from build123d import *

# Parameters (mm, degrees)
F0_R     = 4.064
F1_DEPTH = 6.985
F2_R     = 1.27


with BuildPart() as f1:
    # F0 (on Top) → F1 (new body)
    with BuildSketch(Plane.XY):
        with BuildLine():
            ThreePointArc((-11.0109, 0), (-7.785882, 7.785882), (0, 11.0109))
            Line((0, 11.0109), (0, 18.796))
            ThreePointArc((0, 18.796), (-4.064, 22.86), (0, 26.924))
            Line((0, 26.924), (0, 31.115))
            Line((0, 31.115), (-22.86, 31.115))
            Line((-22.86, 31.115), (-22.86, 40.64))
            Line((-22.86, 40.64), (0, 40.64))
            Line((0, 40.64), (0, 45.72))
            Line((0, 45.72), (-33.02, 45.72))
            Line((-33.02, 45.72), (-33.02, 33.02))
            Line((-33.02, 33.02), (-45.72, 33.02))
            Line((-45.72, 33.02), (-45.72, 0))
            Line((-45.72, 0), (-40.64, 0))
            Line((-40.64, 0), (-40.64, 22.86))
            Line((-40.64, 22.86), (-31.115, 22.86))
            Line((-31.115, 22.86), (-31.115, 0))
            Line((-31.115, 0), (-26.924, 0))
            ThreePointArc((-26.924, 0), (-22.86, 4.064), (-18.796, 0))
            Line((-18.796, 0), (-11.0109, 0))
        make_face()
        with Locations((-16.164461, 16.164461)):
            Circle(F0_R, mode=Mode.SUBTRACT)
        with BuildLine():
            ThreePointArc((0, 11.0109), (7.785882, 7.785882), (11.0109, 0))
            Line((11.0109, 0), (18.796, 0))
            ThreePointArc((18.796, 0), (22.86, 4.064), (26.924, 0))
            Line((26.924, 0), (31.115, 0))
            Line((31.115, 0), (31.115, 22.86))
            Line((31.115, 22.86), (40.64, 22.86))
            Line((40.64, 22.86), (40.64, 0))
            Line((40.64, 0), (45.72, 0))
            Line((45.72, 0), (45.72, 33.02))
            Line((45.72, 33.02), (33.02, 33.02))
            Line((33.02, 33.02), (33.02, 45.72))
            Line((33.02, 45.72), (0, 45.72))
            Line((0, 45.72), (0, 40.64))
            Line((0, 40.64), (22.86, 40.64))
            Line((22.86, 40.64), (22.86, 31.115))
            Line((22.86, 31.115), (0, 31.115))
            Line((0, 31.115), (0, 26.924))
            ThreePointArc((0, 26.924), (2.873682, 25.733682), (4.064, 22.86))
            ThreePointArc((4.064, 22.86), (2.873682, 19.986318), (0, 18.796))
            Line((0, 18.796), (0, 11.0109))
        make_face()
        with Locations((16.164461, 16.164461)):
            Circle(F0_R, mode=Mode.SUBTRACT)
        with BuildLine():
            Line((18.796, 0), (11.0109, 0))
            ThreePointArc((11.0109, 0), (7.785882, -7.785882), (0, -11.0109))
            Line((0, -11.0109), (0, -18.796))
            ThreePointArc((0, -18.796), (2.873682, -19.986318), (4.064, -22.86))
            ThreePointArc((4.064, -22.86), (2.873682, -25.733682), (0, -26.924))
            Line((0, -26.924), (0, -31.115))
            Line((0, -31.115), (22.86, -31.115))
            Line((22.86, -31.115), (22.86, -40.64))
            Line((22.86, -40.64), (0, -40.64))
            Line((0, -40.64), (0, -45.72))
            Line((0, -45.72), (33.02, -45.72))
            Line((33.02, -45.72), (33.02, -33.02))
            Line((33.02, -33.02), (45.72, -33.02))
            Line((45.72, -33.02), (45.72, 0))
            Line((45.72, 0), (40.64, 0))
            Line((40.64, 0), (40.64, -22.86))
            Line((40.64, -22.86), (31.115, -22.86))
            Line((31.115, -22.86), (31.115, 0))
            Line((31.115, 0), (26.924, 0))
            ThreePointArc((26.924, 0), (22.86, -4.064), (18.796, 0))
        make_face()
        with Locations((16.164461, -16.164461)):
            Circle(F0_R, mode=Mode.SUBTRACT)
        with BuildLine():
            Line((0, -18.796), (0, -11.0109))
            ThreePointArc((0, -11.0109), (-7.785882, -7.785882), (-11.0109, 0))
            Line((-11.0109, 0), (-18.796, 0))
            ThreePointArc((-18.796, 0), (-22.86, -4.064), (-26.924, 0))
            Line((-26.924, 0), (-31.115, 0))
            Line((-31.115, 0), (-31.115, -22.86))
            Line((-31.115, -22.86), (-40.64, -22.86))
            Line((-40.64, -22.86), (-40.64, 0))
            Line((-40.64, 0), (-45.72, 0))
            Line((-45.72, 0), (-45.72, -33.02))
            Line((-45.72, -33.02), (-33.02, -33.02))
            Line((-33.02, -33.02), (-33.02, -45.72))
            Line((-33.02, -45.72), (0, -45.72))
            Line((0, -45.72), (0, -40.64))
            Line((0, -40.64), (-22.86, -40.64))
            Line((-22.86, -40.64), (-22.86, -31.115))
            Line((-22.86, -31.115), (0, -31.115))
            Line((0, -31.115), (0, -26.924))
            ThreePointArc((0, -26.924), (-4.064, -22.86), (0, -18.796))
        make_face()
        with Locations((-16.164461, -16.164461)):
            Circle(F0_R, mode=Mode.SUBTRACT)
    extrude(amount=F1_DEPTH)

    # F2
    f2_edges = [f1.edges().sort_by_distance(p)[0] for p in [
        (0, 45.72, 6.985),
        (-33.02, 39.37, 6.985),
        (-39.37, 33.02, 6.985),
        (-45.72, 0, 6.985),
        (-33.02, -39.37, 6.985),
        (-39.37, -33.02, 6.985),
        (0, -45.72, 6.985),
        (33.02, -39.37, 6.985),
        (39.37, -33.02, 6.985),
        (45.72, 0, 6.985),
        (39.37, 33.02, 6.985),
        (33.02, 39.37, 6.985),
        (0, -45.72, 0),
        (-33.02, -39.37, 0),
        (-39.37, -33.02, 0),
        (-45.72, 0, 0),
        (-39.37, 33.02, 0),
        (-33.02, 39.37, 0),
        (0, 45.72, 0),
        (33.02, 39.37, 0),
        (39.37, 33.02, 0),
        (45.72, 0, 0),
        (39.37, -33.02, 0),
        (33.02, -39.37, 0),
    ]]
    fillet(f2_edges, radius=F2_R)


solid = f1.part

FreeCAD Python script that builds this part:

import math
import FreeCAD as App
import Part
import Sketcher
Q = App.Units.Quantity


def edges_at(feature, points):
    """Names of the edges that pass closest to the given points."""
    edges = feature.Shape.Edges
    near = lambda p: min(range(len(edges)), key=lambda i: edges[i].distToShape(Part.Vertex(*p))[0])
    return sorted({f"Edge{near(p) + 1}" for p in points})

doc = App.newDocument("Part")
body = doc.addObject("PartDesign::Body", "Body")

sketch1 = body.newObject("Sketcher::SketchObject", "Sketch")
sketch1.AttachmentSupport = (doc.getObject("XY_Plane"), [""])
sketch1.MapMode = "FlatFace"
sketch1.addGeometry([
    Part.LineSegment(App.Vector(-45.7, 33, 0), App.Vector(-45.7, -33, 0)),
    Part.LineSegment(App.Vector(-45.7, -33, 0), App.Vector(-33, -33, 0)),
    Part.LineSegment(App.Vector(-33, -33, 0), App.Vector(-33, -45.7, 0)),
    Part.LineSegment(App.Vector(-33, -45.7, 0), App.Vector(33, -45.7, 0)),
    Part.LineSegment(App.Vector(33, -45.7, 0), App.Vector(33, -33, 0)),
    Part.LineSegment(App.Vector(33, -33, 0), App.Vector(45.7, -33, 0)),
    Part.LineSegment(App.Vector(45.7, -33, 0), App.Vector(45.7, 33, 0)),
    Part.LineSegment(App.Vector(45.7, 33, 0), App.Vector(33, 33, 0)),
    Part.LineSegment(App.Vector(33, 33, 0), App.Vector(33, 45.7, 0)),
    Part.LineSegment(App.Vector(33, 45.7, 0), App.Vector(-33, 45.7, 0)),
    Part.LineSegment(App.Vector(-33, 45.7, 0), App.Vector(-33, 33, 0)),
    Part.LineSegment(App.Vector(-33, 33, 0), App.Vector(-45.7, 33, 0)),
    Part.LineSegment(App.Vector(22.9, -31.1, 0), App.Vector(22.9, -40.6, 0)),
    Part.LineSegment(App.Vector(22.9, -40.6, 0), App.Vector(-22.9, -40.6, 0)),
    Part.LineSegment(App.Vector(-22.9, -40.6, 0), App.Vector(-22.9, -31.1, 0)),
    Part.LineSegment(App.Vector(-22.9, -31.1, 0), App.Vector(22.9, -31.1, 0)),
    Part.ArcOfCircle(Part.Circle(App.Vector(0, -22.9, 0), App.Vector(0, 0, 1), 4.1), math.radians(0), math.radians(90)),
    Part.ArcOfCircle(Part.Circle(App.Vector(0, -22.9, 0), App.Vector(0, 0, 1), 4.1), math.radians(-90), math.radians(0)),
    Part.ArcOfCircle(Part.Circle(App.Vector(0, -22.9, 0), App.Vector(0, 0, 1), 4.1), math.radians(90), math.radians(270)),
    Part.LineSegment(App.Vector(-31.1, 22.9, 0), App.Vector(-31.1, -22.9, 0)),
    Part.LineSegment(App.Vector(-31.1, -22.9, 0), App.Vector(-40.6, -22.9, 0)),
    Part.LineSegment(App.Vector(-40.6, -22.9, 0), App.Vector(-40.6, 22.9, 0)),
    Part.LineSegment(App.Vector(-40.6, 22.9, 0), App.Vector(-31.1, 22.9, 0)),
    Part.Circle(App.Vector(-22.9, 0, 0), App.Vector(0, 0, 1), 4.1),
    Part.Circle(App.Vector(-16.2, -16.2, 0), App.Vector(0, 0, 1), 4.1),
    Part.ArcOfCircle(Part.Circle(App.Vector(0, 0, 0), App.Vector(0, 0, 1), 11), math.radians(90), math.radians(180)),
    Part.ArcOfCircle(Part.Circle(App.Vector(0, 0, 0), App.Vector(0, 0, 1), 11), math.radians(0), math.radians(90)),
    Part.ArcOfCircle(Part.Circle(App.Vector(0, 0, 0), App.Vector(0, 0, 1), 11), math.radians(-90), math.radians(0)),
    Part.ArcOfCircle(Part.Circle(App.Vector(0, 0, 0), App.Vector(0, 0, 1), 11), math.radians(-180), math.radians(-90)),
    Part.Circle(App.Vector(16.2, -16.2, 0), App.Vector(0, 0, 1), 4.1),
    Part.Circle(App.Vector(22.9, 0, 0), App.Vector(0, 0, 1), 4.1),
    Part.LineSegment(App.Vector(31.1, 22.9, 0), App.Vector(40.6, 22.9, 0)),
    Part.LineSegment(App.Vector(40.6, 22.9, 0), App.Vector(40.6, -22.9, 0)),
    Part.LineSegment(App.Vector(40.6, -22.9, 0), App.Vector(31.1, -22.9, 0)),
    Part.LineSegment(App.Vector(31.1, -22.9, 0), App.Vector(31.1, 22.9, 0)),
    Part.Circle(App.Vector(-16.2, 16.2, 0), App.Vector(0, 0, 1), 4.1),
    Part.ArcOfCircle(Part.Circle(App.Vector(0, 22.9, 0), App.Vector(0, 0, 1), 4.1), math.radians(90), math.radians(270)),
    Part.ArcOfCircle(Part.Circle(App.Vector(0, 22.9, 0), App.Vector(0, 0, 1), 4.1), math.radians(0), math.radians(90)),
    Part.ArcOfCircle(Part.Circle(App.Vector(0, 22.9, 0), App.Vector(0, 0, 1), 4.1), math.radians(-90), math.radians(0)),
    Part.LineSegment(App.Vector(-22.9, 31.1, 0), App.Vector(-22.9, 40.6, 0)),
    Part.LineSegment(App.Vector(-22.9, 40.6, 0), App.Vector(22.9, 40.6, 0)),
    Part.LineSegment(App.Vector(22.9, 40.6, 0), App.Vector(22.9, 31.1, 0)),
    Part.LineSegment(App.Vector(22.9, 31.1, 0), App.Vector(-22.9, 31.1, 0)),
    Part.Circle(App.Vector(16.2, 16.2, 0), App.Vector(0, 0, 1), 4.1),
], False)
sketch1.addConstraint([
    Sketcher.Constraint("Coincident", 0, 2, 1, 1),
    Sketcher.Constraint("Coincident", 1, 2, 2, 1),
    Sketcher.Constraint("Coincident", 2, 2, 3, 1),
    Sketcher.Constraint("Coincident", 3, 2, 4, 1),
    Sketcher.Constraint("Coincident", 4, 2, 5, 1),
    Sketcher.Constraint("Coincident", 5, 2, 6, 1),
    Sketcher.Constraint("Coincident", 6, 2, 7, 1),
    Sketcher.Constraint("Coincident", 7, 2, 8, 1),
    Sketcher.Constraint("Coincident", 8, 2, 9, 1),
    Sketcher.Constraint("Coincident", 9, 2, 10, 1),
    Sketcher.Constraint("Coincident", 10, 2, 11, 1),
    Sketcher.Constraint("Coincident", 11, 2, 0, 1),
    Sketcher.Constraint("Coincident", 12, 2, 13, 1),
    Sketcher.Constraint("Coincident", 13, 2, 14, 1),
    Sketcher.Constraint("Coincident", 14, 2, 15, 1),
    Sketcher.Constraint("Coincident", 15, 2, 12, 1),
    Sketcher.Constraint("Tangent", 16, 1, 17, 2),
    Sketcher.Constraint("Tangent", 17, 1, 18, 2),
    Sketcher.Constraint("Tangent", 18, 1, 16, 2),
    Sketcher.Constraint("Coincident", 19, 2, 20, 1),
    Sketcher.Constraint("Coincident", 20, 2, 21, 1),
    Sketcher.Constraint("Coincident", 21, 2, 22, 1),
    Sketcher.Constraint("Coincident", 22, 2, 19, 1),
    Sketcher.Constraint("Tangent", 25, 1, 26, 2),
    Sketcher.Constraint("Tangent", 26, 1, 27, 2),
    Sketcher.Constraint("Tangent", 27, 1, 28, 2),
    Sketcher.Constraint("Tangent", 28, 1, 25, 2),
    Sketcher.Constraint("Coincident", 31, 2, 32, 1),
    Sketcher.Constraint("Coincident", 32, 2, 33, 1),
    Sketcher.Constraint("Coincident", 33, 2, 34, 1),
    Sketcher.Constraint("Coincident", 34, 2, 31, 1),
    Sketcher.Constraint("Tangent", 36, 1, 37, 2),
    Sketcher.Constraint("Tangent", 37, 1, 38, 2),
    Sketcher.Constraint("Tangent", 38, 1, 36, 2),
    Sketcher.Constraint("Coincident", 39, 2, 40, 1),
    Sketcher.Constraint("Coincident", 40, 2, 41, 1),
    Sketcher.Constraint("Coincident", 41, 2, 42, 1),
    Sketcher.Constraint("Coincident", 42, 2, 39, 1),
    Sketcher.Constraint("Vertical", 0),
    Sketcher.Constraint("Horizontal", 1),
    Sketcher.Constraint("Vertical", 2),
    Sketcher.Constraint("Horizontal", 3),
    Sketcher.Constraint("Vertical", 4),
    Sketcher.Constraint("Horizontal", 5),
    Sketcher.Constraint("Vertical", 6),
    Sketcher.Constraint("Horizontal", 7),
    Sketcher.Constraint("Vertical", 8),
    Sketcher.Constraint("Horizontal", 9),
    Sketcher.Constraint("Vertical", 10),
    Sketcher.Constraint("Horizontal", 11),
    Sketcher.Constraint("Vertical", 12),
    Sketcher.Constraint("Horizontal", 13),
    Sketcher.Constraint("Vertical", 14),
    Sketcher.Constraint("Horizontal", 15),
    Sketcher.Constraint("Vertical", 19),
    Sketcher.Constraint("Horizontal", 20),
    Sketcher.Constraint("Vertical", 21),
    Sketcher.Constraint("Horizontal", 22),
    Sketcher.Constraint("Horizontal", 31),
    Sketcher.Constraint("Vertical", 32),
    Sketcher.Constraint("Horizontal", 33),
    Sketcher.Constraint("Vertical", 34),
    Sketcher.Constraint("Vertical", 39),
    Sketcher.Constraint("Horizontal", 40),
    Sketcher.Constraint("Vertical", 41),
    Sketcher.Constraint("Horizontal", 42),
    Sketcher.Constraint("Coincident", 25, 3, -1, 1),
    Sketcher.Constraint("Equal", 18, 23),
    Sketcher.Constraint("Equal", 23, 24),
    Sketcher.Constraint("Equal", 25, 26),
    Sketcher.Constraint("Equal", 24, 29),
    Sketcher.Constraint("Equal", 29, 30),
    Sketcher.Constraint("Equal", 30, 35),
    Sketcher.Constraint("Equal", 35, 36),
    Sketcher.Constraint("Equal", 38, 43),
    Sketcher.Constraint("Symmetric", 23, 3, 30, 3, -1, 1),
    Sketcher.Constraint("Symmetric", 29, 3, 35, 3, -1, 1),
    Sketcher.Constraint("Symmetric", 16, 3, 36, 3, -1, 1),
    Sketcher.Constraint("Symmetric", 24, 3, 43, 3, -1, 1),
    Sketcher.Constraint("Symmetric", 0, 2, 6, 2, -1, 1),
    Sketcher.Constraint("Symmetric", 2, 2, 8, 2, -1, 1),
    Sketcher.Constraint("Symmetric", 4, 2, 10, 2, -1, 1),
    Sketcher.Constraint("Symmetric", 20, 2, 31, 2, -1, 1),
    Sketcher.Constraint("Symmetric", 22, 2, 33, 2, -1, 1),
    Sketcher.Constraint("Symmetric", 12, 2, 39, 2, -1, 1),
    Sketcher.Constraint("Symmetric", 14, 2, 41, 2, -1, 1),
    Sketcher.Constraint("Symmetric", 24, 3, 29, 3, -2),
    Sketcher.Constraint("Symmetric", 1, 2, 4, 2, -2),
    Sketcher.Constraint("Symmetric", 16, 1, 37, 1, -1),
    Sketcher.Constraint("PointOnObject", 23, 3, -1),
    Sketcher.Constraint("PointOnObject", 17, 1, -2),
    Sketcher.Constraint("PointOnObject", 18, 1, -2),
    Sketcher.Constraint("PointOnObject", 25, 1, -2),
    Sketcher.Constraint("PointOnObject", 26, 1, -1),
    Sketcher.Constraint("PointOnObject", 27, 1, -2),
    Sketcher.Constraint("PointOnObject", 28, 1, -1),
    Sketcher.Constraint("PointOnObject", 36, 1, -2),
    Sketcher.Constraint("PointOnObject", 38, 1, -2),
    Sketcher.Constraint("Horizontal", 18, 3, 16, 1),
    Sketcher.Constraint("Horizontal", 16, 1, 19, 2),
    Sketcher.Constraint("Horizontal", 38, 3, 21, 2),
    Sketcher.Constraint("Vertical", 30, 3, 12, 2),
    Sketcher.Constraint("Vertical", 23, 3, 13, 2),
    Sketcher.Constraint("Equal", 9, 0),
    Sketcher.Constraint("Equal", 11, 2),
    Sketcher.Constraint("Equal", 33, 12),
    Sketcher.Constraint("Equal", 42, 19),
    Sketcher.Constraint("Diameter", 23, Q("0.32 in")),
    Sketcher.Constraint("DistanceX", 1, 1, 1, 2, Q("0.5 in")),
    Sketcher.Constraint("DistanceX", 3, 1, 3, 2, Q("2.6 in")),
    Sketcher.Constraint("DistanceX", 13, 2, 13, 1, Q("1.8 in")),
    Sketcher.Constraint("DistanceY", 12, 2, -1, 1, Q("1.6 in")),
    Sketcher.Constraint("DistanceX", 20, 2, -1, 1, Q("1.6 in")),
    Sketcher.Constraint("Radius", 25, Q("0.4335 in")),
    Sketcher.Constraint("DistanceX", 20, 2, 20, 1, Q("0.375 in")),
    Sketcher.Constraint("DistanceX", 24, 3, -1, 1, 16.164461),
    Sketcher.Constraint("DistanceY", 24, 3, -1, 1, 16.164461),
])
pad1 = body.newObject("PartDesign::Pad", "Pad")
pad1.Profile = sketch1
pad1.Length = Q("0.275 in")
doc.recompute()

fillet = body.newObject("PartDesign::Fillet", "Fillet")
fillet.Base = (pad1, edges_at(pad1, [
    (0, 45.72, 6.985),
    (-33.02, 39.37, 6.985),
    (-39.37, 33.02, 6.985),
    (-45.72, 0, 6.985),
    (-33.02, -39.37, 6.985),
    (-39.37, -33.02, 6.985),
    (0, -45.72, 6.985),
    (33.02, -39.37, 6.985),
    (39.37, -33.02, 6.985),
    (45.72, 0, 6.985),
    (39.37, 33.02, 6.985),
    (33.02, 39.37, 6.985),
    (0, -45.72, 0),
    (-33.02, -39.37, 0),
    (-39.37, -33.02, 0),
    (-45.72, 0, 0),
    (-39.37, 33.02, 0),
    (-33.02, 39.37, 0),
    (0, 45.72, 0),
    (33.02, 39.37, 0),
    (39.37, 33.02, 0),
    (45.72, 0, 0),
    (39.37, -33.02, 0),
    (33.02, -39.37, 0),
]))
fillet.Radius = Q("0.05 in")

doc.recompute()
